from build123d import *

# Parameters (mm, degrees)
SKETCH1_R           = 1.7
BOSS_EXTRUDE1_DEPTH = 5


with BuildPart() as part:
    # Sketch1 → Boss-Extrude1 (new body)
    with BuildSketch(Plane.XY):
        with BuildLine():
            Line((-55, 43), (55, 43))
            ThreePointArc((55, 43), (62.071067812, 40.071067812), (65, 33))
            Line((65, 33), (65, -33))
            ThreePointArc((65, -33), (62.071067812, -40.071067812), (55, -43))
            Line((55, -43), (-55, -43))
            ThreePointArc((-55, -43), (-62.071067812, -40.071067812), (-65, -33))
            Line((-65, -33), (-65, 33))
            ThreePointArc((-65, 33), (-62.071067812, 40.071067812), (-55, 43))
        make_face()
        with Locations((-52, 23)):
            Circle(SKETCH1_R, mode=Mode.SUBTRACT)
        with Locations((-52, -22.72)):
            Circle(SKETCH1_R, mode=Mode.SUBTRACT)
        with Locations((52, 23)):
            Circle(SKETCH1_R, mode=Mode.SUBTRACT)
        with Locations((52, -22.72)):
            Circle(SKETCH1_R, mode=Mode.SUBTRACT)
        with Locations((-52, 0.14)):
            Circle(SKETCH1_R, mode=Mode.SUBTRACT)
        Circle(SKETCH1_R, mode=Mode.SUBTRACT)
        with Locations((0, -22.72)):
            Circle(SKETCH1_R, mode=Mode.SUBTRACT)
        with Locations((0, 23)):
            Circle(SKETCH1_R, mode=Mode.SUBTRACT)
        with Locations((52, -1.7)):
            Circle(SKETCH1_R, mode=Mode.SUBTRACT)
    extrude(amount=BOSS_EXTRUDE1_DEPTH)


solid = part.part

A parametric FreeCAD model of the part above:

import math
import FreeCAD as App
import Part
import Sketcher

V = App.Vector

doc = App.newDocument("Part")
body = doc.addObject("PartDesign::Body", "Body")

# Sketch on XY plane
sketch1 = doc.addObject("Sketcher::SketchObject", "Sketch")
body.addObject(sketch1)
sketch1.AttachmentSupport = (doc.XY_Plane, [""])
sketch1.MapMode = "FlatFace"
sketch1.addGeometry([
    Part.LineSegment(V(55, 43, 0), V(-55, 43, 0)),  # 0
    Part.ArcOfCircle(Part.Circle(V(-55, 33, 0), V(0, 0, 1), 10), math.radians(90), math.radians(180)),  # 1
    Part.LineSegment(V(-65, 33, 0), V(-65, -33, 0)),  # 2
    Part.ArcOfCircle(Part.Circle(V(-55, -33, 0), V(0, 0, 1), 10), math.radians(180), math.radians(270)),  # 3
    Part.LineSegment(V(-55, -43, 0), V(55, -43, 0)),  # 4
    Part.ArcOfCircle(Part.Circle(V(55, -33, 0), V(0, 0, 1), 10), math.radians(-90), math.radians(0)),  # 5
    Part.LineSegment(V(65, -33, 0), V(65, 33, 0)),  # 6
    Part.ArcOfCircle(Part.Circle(V(55, 33, 0), V(0, 0, 1), 10), math.radians(0), math.radians(90)),  # 7
    Part.Circle(V(52, -22.7, 0), V(0, 0, 1), 1.7),  # 8
    Part.Circle(V(0, -22.7, 0), V(0, 0, 1), 1.7),  # 9
    Part.Circle(V(52, -1.7, 0), V(0, 0, 1), 1.7),  # 10
    Part.Circle(V(0, 0, 0), V(0, 0, 1), 1.7),  # 11
    Part.Circle(V(-52, -22.7, 0), V(0, 0, 1), 1.7),  # 12
    Part.Circle(V(52, 23, 0), V(0, 0, 1), 1.7),  # 13
    Part.Circle(V(0, 23, 0), V(0, 0, 1), 1.7),  # 14
    Part.Circle(V(-52, 0.1, 0), V(0, 0, 1), 1.7),  # 15
    Part.Circle(V(-52, 23, 0), V(0, 0, 1), 1.7),  # 16
], False)
sketch1.addConstraint([
    Sketcher.Constraint("Tangent", 0, 2, 1, 1),
    Sketcher.Constraint("Tangent", 1, 2, 2, 1),
    Sketcher.Constraint("Tangent", 2, 2, 3, 1),
    Sketcher.Constraint("Tangent", 3, 2, 4, 1),
    Sketcher.Constraint("Tangent", 4, 2, 5, 1),
    Sketcher.Constraint("Tangent", 5, 2, 6, 1),
    Sketcher.Constraint("Tangent", 6, 2, 7, 1),
    Sketcher.Constraint("Tangent", 7, 2, 0, 1),
    Sketcher.Constraint("Horizontal", 0),
    Sketcher.Constraint("Vertical", 2),
    Sketcher.Constraint("Horizontal", 4),
    Sketcher.Constraint("Vertical", 6),
    Sketcher.Constraint("Coincident", 11, 3, -1, 1),
    Sketcher.Constraint("Equal", 1, 3),
    Sketcher.Constraint("Equal", 3, 5),
    Sketcher.Constraint("Equal", 5, 7),
    Sketcher.Constraint("Equal", 8, 9),
    Sketcher.Constraint("Equal", 9, 10),
    Sketcher.Constraint("Equal", 10, 11),
    Sketcher.Constraint("Equal", 11, 12),
    Sketcher.Constraint("Equal", 12, 13),
    Sketcher.Constraint("Equal", 13, 14),
    Sketcher.Constraint("Equal", 14, 15),
    Sketcher.Constraint("Equal", 15, 16),
    Sketcher.Constraint("Symmetric", 1, 3, 5, 3, -1, 1),
    Sketcher.Constraint("Symmetric", 8, 3, 12, 3, -2),
    Sketcher.Constraint("Symmetric", 13, 3, 16, 3, -2),
    Sketcher.Constraint("PointOnObject", 9, 3, -2),
    Sketcher.Constraint("PointOnObject", 14, 3, -2),
    Sketcher.Constraint("Horizontal", 8, 3, 9, 3),
    Sketcher.Constraint("Horizontal", 13, 3, 14, 3),
    Sketcher.Constraint("Vertical", 8, 3, 10, 3),
    Sketcher.Constraint("Vertical", 10, 3, 13, 3),
    Sketcher.Constraint("Vertical", 12, 3, 15, 3),
    Sketcher.Constraint("Radius", 1, 10.0),
    Sketcher.Constraint("Diameter", 8, 3.4),
    Sketcher.Constraint("DistanceX", 0, 2, 0, 1, 110.0),
    Sketcher.Constraint("DistanceY", 2, 2, 2, 1, 66.0),
    Sketcher.Constraint("DistanceX", -1, 1, 8, 3, 52.0),
    Sketcher.Constraint("DistanceY", -1, 1, 13, 3, 23.0),
    Sketcher.Constraint("DistanceY", 10, 3, -1, 1, 1.7),
    Sketcher.Constraint("DistanceY", 8, 3, -1, 1, 22.72),
    Sketcher.Constraint("DistanceY", -1, 1, 15, 3, 0.14),
])
pad1 = doc.addObject("PartDesign::Pad", "Pad")
body.addObject(pad1)
pad1.Profile = sketch1
pad1.Length = 5

doc.recompute()
